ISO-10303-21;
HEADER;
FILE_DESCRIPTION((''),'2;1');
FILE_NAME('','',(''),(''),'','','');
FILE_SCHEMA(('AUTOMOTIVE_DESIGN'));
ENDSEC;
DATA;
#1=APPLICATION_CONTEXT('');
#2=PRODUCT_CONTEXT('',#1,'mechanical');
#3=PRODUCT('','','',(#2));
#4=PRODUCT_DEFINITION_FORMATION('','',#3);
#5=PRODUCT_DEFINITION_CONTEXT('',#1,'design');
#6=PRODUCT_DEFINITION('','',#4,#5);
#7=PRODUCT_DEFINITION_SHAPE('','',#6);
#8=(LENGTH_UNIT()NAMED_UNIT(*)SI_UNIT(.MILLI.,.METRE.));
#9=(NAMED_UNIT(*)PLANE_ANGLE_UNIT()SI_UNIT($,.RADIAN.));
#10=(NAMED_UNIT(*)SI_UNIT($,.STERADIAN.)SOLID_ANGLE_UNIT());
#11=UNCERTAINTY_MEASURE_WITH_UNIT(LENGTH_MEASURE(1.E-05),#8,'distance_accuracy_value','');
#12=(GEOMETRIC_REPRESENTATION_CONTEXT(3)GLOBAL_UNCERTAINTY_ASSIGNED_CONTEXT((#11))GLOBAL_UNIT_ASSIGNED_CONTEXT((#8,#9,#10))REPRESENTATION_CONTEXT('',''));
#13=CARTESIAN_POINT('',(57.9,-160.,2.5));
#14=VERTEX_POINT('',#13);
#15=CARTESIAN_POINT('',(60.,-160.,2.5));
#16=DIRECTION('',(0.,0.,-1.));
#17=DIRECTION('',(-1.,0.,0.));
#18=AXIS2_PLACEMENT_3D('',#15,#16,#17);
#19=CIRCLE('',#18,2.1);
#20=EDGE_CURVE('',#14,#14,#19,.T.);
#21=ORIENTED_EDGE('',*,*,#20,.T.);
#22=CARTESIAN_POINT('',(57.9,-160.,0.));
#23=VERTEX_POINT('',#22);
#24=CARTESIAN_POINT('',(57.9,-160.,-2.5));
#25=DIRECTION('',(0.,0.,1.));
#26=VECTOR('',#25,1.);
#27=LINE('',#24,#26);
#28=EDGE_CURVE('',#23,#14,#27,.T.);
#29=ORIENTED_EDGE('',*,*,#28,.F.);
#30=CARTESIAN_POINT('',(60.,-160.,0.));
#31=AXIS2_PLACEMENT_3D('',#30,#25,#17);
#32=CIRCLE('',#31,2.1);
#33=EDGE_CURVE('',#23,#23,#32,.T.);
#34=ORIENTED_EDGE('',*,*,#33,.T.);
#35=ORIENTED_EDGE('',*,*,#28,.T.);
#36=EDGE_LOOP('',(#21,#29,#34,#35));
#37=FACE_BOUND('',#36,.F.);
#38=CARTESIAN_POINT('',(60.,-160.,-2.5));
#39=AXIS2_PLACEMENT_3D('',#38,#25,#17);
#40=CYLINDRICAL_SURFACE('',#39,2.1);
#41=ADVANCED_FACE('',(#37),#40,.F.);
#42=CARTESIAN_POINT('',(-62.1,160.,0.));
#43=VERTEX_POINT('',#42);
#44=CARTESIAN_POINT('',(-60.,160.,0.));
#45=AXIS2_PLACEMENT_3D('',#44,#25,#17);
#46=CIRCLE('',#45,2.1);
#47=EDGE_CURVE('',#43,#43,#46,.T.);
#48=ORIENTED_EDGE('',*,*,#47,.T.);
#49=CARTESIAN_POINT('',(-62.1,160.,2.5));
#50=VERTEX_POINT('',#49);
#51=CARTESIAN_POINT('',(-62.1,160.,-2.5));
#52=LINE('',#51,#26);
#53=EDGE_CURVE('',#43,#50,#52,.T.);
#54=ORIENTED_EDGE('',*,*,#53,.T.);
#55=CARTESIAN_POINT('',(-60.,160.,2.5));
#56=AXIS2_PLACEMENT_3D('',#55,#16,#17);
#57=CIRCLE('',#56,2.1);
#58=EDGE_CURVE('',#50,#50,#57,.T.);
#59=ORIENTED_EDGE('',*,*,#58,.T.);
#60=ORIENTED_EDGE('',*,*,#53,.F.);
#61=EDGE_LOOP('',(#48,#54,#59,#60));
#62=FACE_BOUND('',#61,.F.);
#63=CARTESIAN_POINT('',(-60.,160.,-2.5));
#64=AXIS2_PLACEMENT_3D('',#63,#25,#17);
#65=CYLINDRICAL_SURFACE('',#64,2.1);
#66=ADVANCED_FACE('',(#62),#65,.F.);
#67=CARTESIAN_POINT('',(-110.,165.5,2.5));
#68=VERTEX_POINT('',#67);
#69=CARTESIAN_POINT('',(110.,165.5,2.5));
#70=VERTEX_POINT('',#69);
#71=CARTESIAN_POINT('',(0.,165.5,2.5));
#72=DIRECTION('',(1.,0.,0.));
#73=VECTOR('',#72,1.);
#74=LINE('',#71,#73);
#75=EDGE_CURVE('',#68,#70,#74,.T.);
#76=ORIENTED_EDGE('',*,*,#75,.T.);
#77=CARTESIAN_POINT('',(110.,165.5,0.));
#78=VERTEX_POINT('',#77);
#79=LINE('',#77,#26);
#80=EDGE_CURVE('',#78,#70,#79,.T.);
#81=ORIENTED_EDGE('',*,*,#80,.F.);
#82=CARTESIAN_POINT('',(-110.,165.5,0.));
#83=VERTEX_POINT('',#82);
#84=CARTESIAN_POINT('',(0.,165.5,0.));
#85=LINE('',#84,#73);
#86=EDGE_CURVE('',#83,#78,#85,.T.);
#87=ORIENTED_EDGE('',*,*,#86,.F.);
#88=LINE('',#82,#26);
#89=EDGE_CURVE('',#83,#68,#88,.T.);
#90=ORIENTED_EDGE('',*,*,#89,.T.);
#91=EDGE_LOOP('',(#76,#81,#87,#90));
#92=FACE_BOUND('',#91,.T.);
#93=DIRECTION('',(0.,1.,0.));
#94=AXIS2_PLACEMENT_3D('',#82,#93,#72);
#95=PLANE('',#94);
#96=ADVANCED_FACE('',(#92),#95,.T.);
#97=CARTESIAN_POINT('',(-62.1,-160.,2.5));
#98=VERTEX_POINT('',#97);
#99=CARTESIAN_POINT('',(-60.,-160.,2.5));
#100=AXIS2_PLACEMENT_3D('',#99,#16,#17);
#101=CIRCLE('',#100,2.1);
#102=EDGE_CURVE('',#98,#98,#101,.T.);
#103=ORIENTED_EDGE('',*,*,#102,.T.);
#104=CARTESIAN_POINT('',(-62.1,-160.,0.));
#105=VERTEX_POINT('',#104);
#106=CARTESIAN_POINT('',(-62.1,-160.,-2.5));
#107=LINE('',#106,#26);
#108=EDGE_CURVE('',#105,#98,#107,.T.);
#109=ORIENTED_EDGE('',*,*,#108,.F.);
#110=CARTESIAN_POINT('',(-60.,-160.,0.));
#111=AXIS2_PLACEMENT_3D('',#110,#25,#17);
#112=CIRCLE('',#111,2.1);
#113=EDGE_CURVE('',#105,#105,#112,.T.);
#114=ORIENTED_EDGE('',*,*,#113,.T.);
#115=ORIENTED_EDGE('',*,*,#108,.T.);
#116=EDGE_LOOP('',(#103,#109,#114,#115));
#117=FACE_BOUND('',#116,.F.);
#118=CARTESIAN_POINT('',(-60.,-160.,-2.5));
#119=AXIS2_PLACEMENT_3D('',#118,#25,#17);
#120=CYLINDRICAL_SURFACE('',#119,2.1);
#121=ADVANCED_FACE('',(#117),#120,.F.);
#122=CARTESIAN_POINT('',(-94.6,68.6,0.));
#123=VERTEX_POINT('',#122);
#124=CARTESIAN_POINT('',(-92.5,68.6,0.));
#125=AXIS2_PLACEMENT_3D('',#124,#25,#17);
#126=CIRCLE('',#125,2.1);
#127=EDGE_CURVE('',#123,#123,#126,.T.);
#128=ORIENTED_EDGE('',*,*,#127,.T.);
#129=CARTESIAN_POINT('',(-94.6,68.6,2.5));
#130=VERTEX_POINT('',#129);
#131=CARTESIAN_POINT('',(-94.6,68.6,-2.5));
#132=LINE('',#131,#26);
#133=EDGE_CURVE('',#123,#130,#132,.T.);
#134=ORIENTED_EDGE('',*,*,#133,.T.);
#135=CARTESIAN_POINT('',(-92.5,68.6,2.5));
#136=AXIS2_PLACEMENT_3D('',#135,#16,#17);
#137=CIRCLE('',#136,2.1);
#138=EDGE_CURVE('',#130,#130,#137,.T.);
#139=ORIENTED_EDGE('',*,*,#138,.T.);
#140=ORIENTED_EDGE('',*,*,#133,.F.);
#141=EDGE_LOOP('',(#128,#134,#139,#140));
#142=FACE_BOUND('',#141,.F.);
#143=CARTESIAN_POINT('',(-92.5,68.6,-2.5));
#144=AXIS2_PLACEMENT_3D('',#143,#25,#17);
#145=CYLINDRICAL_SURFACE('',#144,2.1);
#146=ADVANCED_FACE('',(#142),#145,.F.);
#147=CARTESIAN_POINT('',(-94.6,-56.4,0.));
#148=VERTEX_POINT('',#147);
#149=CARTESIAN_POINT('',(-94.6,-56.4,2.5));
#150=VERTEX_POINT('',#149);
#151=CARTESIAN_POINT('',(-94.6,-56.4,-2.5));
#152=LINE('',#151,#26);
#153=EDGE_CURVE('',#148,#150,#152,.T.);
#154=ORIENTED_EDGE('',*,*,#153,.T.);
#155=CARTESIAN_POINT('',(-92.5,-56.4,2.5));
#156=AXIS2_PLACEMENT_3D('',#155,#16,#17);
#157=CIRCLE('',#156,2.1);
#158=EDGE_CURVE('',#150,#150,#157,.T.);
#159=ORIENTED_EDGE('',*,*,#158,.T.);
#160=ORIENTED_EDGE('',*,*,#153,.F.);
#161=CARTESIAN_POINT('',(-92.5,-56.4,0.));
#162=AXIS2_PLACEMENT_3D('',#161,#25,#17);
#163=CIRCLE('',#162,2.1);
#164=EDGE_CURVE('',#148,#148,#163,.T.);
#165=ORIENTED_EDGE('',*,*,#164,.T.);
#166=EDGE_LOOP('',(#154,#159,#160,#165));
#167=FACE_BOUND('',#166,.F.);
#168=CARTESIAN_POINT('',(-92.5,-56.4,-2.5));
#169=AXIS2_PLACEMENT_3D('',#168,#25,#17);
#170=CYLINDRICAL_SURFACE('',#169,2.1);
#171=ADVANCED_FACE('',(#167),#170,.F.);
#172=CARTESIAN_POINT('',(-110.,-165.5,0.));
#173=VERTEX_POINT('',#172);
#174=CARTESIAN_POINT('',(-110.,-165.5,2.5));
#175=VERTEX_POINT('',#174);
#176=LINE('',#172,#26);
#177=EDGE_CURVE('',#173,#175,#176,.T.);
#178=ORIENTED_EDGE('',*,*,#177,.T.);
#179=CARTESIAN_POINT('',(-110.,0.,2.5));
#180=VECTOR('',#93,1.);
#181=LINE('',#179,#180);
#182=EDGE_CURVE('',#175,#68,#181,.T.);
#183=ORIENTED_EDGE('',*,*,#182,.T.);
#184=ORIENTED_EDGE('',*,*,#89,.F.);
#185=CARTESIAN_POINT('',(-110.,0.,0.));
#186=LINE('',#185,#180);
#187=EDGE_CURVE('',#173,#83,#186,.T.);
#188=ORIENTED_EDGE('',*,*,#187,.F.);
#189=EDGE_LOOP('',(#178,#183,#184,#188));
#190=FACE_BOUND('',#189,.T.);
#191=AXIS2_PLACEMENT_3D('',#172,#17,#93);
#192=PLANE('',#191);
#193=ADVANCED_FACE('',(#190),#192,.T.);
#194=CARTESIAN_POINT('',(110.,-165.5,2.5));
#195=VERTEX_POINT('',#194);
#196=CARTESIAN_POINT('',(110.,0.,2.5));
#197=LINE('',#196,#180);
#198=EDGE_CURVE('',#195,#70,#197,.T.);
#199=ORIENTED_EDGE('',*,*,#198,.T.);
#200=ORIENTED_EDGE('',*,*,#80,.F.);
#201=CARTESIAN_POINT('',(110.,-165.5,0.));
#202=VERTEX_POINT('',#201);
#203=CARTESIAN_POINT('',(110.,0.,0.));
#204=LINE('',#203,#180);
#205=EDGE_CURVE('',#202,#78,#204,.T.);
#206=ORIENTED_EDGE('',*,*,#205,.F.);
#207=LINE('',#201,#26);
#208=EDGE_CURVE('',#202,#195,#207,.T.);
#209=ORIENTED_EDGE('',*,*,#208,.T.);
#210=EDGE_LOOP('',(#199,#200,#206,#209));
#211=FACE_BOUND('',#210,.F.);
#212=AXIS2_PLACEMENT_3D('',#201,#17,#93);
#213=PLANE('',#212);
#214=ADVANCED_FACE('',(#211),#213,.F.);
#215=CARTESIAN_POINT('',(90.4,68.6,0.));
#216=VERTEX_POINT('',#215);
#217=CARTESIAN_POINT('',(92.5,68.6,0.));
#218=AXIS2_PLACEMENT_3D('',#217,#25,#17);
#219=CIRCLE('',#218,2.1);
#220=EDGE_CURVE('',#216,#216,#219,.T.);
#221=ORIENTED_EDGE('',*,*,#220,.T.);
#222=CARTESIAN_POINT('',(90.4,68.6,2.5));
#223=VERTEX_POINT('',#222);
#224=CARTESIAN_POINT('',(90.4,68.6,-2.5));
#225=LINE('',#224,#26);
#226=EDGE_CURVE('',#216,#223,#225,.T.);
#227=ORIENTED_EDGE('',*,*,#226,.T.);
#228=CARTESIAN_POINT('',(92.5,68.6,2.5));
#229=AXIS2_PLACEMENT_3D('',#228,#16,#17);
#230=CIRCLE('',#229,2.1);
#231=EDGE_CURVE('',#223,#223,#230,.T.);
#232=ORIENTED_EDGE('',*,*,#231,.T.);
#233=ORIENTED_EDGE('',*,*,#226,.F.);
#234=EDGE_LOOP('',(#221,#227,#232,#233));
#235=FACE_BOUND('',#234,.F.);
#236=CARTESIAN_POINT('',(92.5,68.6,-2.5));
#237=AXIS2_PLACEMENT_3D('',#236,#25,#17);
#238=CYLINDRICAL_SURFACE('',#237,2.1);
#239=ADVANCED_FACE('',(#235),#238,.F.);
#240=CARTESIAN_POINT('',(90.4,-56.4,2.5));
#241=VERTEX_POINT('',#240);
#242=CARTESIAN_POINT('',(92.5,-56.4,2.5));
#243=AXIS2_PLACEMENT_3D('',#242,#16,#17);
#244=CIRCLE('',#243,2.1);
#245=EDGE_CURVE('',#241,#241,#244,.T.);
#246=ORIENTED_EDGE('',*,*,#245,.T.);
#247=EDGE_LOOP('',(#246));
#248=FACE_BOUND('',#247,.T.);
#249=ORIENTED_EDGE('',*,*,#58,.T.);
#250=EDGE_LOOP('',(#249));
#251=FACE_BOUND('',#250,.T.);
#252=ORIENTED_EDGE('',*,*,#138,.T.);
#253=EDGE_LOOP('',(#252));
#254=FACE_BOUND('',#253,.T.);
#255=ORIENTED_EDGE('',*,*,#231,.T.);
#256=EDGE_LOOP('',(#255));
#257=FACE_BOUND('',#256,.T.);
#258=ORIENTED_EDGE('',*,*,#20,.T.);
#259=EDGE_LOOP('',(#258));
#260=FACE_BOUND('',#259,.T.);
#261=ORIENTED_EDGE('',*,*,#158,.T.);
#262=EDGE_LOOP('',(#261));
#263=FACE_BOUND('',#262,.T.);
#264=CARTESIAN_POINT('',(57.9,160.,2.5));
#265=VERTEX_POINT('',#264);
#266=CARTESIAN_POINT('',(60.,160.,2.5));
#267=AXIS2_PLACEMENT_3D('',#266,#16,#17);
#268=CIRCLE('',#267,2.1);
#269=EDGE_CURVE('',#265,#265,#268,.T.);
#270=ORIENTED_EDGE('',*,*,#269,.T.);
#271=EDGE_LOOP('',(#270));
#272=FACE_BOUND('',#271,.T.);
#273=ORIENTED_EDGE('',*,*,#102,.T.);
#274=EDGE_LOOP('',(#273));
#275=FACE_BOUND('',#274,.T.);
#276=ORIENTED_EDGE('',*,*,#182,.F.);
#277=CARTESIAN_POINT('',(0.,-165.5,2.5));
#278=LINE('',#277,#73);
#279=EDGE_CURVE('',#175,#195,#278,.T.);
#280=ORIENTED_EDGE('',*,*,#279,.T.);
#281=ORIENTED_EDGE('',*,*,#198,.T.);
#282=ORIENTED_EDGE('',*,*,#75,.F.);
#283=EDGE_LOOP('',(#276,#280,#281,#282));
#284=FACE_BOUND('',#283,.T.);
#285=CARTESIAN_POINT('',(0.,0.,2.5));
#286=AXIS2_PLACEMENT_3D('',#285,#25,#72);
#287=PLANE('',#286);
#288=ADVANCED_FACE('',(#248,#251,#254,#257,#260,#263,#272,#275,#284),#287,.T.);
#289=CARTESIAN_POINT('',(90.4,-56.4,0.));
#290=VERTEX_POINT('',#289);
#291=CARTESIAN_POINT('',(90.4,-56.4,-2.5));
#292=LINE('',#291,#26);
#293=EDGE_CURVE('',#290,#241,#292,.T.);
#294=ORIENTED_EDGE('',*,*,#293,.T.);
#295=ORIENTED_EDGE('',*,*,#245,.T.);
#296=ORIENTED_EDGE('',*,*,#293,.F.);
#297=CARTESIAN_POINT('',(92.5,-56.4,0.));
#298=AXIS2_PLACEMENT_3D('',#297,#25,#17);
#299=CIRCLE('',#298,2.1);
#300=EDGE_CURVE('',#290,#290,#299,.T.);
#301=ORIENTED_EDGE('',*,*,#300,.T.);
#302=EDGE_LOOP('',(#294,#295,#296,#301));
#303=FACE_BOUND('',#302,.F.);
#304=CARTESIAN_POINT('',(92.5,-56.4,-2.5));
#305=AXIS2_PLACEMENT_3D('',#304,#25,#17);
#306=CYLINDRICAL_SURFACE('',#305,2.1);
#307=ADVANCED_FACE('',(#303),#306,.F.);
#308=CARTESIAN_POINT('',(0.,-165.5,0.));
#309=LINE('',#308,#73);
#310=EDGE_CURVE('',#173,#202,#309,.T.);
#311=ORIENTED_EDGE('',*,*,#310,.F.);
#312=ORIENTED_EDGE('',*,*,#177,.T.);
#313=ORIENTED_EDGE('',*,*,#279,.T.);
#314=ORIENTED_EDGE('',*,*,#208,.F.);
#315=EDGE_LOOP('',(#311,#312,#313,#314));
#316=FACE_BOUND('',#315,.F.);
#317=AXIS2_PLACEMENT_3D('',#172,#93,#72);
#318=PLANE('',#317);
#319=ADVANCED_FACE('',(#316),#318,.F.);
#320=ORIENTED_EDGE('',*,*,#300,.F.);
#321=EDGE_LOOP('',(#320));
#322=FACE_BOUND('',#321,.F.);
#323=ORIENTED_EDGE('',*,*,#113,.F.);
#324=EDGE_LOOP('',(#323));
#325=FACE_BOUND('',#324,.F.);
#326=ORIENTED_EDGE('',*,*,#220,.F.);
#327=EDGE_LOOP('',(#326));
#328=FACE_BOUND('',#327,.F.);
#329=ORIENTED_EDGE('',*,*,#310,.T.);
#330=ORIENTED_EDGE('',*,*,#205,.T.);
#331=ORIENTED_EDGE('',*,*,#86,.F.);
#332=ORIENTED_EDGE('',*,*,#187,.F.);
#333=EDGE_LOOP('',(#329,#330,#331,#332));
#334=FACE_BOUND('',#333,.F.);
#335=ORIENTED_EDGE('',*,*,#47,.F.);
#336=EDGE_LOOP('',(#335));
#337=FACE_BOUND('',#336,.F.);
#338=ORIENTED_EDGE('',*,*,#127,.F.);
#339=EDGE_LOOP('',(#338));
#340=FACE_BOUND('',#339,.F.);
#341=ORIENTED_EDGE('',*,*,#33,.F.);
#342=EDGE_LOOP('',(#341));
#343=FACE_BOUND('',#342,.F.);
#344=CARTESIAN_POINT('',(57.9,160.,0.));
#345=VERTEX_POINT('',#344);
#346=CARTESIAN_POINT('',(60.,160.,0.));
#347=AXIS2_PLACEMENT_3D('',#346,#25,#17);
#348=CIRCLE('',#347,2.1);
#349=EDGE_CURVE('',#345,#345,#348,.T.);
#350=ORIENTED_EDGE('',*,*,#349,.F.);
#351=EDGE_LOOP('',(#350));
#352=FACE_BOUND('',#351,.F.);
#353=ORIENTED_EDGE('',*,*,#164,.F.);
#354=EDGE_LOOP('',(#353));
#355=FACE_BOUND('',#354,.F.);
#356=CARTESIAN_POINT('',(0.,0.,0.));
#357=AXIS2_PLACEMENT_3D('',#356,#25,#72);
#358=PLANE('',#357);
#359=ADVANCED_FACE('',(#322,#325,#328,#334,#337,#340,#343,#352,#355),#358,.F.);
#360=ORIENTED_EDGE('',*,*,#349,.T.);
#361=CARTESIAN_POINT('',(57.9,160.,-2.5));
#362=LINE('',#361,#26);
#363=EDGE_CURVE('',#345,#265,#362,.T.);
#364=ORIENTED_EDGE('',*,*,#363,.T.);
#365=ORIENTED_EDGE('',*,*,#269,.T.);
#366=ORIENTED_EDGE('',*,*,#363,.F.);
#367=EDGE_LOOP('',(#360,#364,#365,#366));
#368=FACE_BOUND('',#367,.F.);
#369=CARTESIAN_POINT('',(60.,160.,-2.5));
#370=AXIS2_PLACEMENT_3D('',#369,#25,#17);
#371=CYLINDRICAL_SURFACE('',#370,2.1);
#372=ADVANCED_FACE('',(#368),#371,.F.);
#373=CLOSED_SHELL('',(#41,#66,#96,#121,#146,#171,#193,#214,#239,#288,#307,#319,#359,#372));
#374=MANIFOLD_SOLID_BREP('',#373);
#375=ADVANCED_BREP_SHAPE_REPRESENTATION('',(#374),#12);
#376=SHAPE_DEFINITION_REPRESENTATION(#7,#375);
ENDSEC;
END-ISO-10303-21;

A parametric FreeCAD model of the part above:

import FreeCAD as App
import Part
import Sketcher

V = App.Vector


def add_polygon(sketch, points):
    """Adds a closed chain of lines whose ends are joined by coincident constraints."""
    first, n = sketch.GeometryCount, len(points)
    for a, b in zip(points, points[1:] + points[:1]):
        sketch.addGeometry(Part.LineSegment(App.Vector(*a, 0), App.Vector(*b, 0)), False)
    for i in range(n):
        sketch.addConstraint(Sketcher.Constraint("Coincident", first + i, 2, first + (i + 1) % n, 1))

doc = App.newDocument("Part")
body = doc.addObject("PartDesign::Body", "Body")

# Sketch on XY plane
sketch1 = doc.addObject("Sketcher::SketchObject", "Sketch")
body.addObject(sketch1)
sketch1.AttachmentSupport = (doc.XY_Plane, [""])
sketch1.MapMode = "FlatFace"
add_polygon(sketch1, [(-110, 165.5), (-110, -165.5), (110, -165.5), (110, 165.5)])  # lines 0-3
sketch1.addConstraint([
    Sketcher.Constraint("Vertical", 0),
    Sketcher.Constraint("Horizontal", 1),
    Sketcher.Constraint("Vertical", 2),
    Sketcher.Constraint("Horizontal", 3),
    Sketcher.Constraint("Symmetric", 0, 2, 2, 2, -1, 1),
    Sketcher.Constraint("DistanceX", 1, 1, 1, 2, 220.0),
    Sketcher.Constraint("DistanceY", 0, 2, 0, 1, 331.0),
])
pad1 = doc.addObject("PartDesign::Pad", "Pad")
body.addObject(pad1)
pad1.Profile = sketch1
pad1.Length = 2.5

# Sketch on XY plane
sketch2 = doc.addObject("Sketcher::SketchObject", "Sketch001")
body.addObject(sketch2)
sketch2.AttachmentSupport = (doc.XY_Plane, [""])
sketch2.MapMode = "FlatFace"
sketch2.addGeometry([
    Part.Circle(V(60, 160, 0), V(0, 0, 1), 2.1),  # 0
    Part.Circle(V(-60, 160, 0), V(0, 0, 1), 2.1),  # 1
    Part.Circle(V(-92.5, 68.6, 0), V(0, 0, 1), 2.1),  # 2
    Part.Circle(V(92.5, 68.6, 0), V(0, 0, 1), 2.1),  # 3
    Part.Circle(V(92.5, -56.4, 0), V(0, 0, 1), 2.1),  # 4
    Part.Circle(V(-92.5, -56.4, 0), V(0, 0, 1), 2.1),  # 5
    Part.Circle(V(-60, -160, 0), V(0, 0, 1), 2.1),  # 6
    Part.Circle(V(60, -160, 0), V(0, 0, 1), 2.1),  # 7
], False)
sketch2.addConstraint([
    Sketcher.Constraint("Equal", 0, 1),
    Sketcher.Constraint("Equal", 1, 2),
    Sketcher.Constraint("Equal", 2, 3),
    Sketcher.Constraint("Equal", 3, 4),
    Sketcher.Constraint("Equal", 4, 5),
    Sketcher.Constraint("Equal", 5, 6),
    Sketcher.Constraint("Equal", 6, 7),
    Sketcher.Constraint("Symmetric", 0, 3, 6, 3, -1, 1),
    Sketcher.Constraint("Symmetric", 1, 3, 7, 3, -1, 1),
    Sketcher.Constraint("Symmetric", 0, 3, 1, 3, -2),
    Sketcher.Constraint("Symmetric", 2, 3, 3, 3, -2),
    Sketcher.Constraint("Symmetric", 4, 3, 5, 3, -2),
    Sketcher.Constraint("Vertical", 3, 3, 4, 3),
    Sketcher.Constraint("Diameter", 0, 4.2),
    Sketcher.Constraint("DistanceX", -1, 1, 0, 3, 60.0),
    Sketcher.Constraint("DistanceY", -1, 1, 0, 3, 160.0),
    Sketcher.Constraint("DistanceX", 2, 3, 3, 3, 185.0),
    Sketcher.Constraint("DistanceY", 4, 3, 3, 3, 125.0),
    Sketcher.Constraint("DistanceY", -1, 1, 2, 3, 68.6),
])
doc.recompute()
hole = doc.addObject("PartDesign::Hole", "Hole")
body.addObject(hole)
hole.Profile = sketch2
hole.ThreadType = "None"
hole.Diameter = 4.2
hole.DepthType = "Dimension"
hole.Depth = 2.5
hole.DrillPoint = "Angled"
hole.DrillPointAngle = 118
hole.Reversed = True

doc.recompute()
